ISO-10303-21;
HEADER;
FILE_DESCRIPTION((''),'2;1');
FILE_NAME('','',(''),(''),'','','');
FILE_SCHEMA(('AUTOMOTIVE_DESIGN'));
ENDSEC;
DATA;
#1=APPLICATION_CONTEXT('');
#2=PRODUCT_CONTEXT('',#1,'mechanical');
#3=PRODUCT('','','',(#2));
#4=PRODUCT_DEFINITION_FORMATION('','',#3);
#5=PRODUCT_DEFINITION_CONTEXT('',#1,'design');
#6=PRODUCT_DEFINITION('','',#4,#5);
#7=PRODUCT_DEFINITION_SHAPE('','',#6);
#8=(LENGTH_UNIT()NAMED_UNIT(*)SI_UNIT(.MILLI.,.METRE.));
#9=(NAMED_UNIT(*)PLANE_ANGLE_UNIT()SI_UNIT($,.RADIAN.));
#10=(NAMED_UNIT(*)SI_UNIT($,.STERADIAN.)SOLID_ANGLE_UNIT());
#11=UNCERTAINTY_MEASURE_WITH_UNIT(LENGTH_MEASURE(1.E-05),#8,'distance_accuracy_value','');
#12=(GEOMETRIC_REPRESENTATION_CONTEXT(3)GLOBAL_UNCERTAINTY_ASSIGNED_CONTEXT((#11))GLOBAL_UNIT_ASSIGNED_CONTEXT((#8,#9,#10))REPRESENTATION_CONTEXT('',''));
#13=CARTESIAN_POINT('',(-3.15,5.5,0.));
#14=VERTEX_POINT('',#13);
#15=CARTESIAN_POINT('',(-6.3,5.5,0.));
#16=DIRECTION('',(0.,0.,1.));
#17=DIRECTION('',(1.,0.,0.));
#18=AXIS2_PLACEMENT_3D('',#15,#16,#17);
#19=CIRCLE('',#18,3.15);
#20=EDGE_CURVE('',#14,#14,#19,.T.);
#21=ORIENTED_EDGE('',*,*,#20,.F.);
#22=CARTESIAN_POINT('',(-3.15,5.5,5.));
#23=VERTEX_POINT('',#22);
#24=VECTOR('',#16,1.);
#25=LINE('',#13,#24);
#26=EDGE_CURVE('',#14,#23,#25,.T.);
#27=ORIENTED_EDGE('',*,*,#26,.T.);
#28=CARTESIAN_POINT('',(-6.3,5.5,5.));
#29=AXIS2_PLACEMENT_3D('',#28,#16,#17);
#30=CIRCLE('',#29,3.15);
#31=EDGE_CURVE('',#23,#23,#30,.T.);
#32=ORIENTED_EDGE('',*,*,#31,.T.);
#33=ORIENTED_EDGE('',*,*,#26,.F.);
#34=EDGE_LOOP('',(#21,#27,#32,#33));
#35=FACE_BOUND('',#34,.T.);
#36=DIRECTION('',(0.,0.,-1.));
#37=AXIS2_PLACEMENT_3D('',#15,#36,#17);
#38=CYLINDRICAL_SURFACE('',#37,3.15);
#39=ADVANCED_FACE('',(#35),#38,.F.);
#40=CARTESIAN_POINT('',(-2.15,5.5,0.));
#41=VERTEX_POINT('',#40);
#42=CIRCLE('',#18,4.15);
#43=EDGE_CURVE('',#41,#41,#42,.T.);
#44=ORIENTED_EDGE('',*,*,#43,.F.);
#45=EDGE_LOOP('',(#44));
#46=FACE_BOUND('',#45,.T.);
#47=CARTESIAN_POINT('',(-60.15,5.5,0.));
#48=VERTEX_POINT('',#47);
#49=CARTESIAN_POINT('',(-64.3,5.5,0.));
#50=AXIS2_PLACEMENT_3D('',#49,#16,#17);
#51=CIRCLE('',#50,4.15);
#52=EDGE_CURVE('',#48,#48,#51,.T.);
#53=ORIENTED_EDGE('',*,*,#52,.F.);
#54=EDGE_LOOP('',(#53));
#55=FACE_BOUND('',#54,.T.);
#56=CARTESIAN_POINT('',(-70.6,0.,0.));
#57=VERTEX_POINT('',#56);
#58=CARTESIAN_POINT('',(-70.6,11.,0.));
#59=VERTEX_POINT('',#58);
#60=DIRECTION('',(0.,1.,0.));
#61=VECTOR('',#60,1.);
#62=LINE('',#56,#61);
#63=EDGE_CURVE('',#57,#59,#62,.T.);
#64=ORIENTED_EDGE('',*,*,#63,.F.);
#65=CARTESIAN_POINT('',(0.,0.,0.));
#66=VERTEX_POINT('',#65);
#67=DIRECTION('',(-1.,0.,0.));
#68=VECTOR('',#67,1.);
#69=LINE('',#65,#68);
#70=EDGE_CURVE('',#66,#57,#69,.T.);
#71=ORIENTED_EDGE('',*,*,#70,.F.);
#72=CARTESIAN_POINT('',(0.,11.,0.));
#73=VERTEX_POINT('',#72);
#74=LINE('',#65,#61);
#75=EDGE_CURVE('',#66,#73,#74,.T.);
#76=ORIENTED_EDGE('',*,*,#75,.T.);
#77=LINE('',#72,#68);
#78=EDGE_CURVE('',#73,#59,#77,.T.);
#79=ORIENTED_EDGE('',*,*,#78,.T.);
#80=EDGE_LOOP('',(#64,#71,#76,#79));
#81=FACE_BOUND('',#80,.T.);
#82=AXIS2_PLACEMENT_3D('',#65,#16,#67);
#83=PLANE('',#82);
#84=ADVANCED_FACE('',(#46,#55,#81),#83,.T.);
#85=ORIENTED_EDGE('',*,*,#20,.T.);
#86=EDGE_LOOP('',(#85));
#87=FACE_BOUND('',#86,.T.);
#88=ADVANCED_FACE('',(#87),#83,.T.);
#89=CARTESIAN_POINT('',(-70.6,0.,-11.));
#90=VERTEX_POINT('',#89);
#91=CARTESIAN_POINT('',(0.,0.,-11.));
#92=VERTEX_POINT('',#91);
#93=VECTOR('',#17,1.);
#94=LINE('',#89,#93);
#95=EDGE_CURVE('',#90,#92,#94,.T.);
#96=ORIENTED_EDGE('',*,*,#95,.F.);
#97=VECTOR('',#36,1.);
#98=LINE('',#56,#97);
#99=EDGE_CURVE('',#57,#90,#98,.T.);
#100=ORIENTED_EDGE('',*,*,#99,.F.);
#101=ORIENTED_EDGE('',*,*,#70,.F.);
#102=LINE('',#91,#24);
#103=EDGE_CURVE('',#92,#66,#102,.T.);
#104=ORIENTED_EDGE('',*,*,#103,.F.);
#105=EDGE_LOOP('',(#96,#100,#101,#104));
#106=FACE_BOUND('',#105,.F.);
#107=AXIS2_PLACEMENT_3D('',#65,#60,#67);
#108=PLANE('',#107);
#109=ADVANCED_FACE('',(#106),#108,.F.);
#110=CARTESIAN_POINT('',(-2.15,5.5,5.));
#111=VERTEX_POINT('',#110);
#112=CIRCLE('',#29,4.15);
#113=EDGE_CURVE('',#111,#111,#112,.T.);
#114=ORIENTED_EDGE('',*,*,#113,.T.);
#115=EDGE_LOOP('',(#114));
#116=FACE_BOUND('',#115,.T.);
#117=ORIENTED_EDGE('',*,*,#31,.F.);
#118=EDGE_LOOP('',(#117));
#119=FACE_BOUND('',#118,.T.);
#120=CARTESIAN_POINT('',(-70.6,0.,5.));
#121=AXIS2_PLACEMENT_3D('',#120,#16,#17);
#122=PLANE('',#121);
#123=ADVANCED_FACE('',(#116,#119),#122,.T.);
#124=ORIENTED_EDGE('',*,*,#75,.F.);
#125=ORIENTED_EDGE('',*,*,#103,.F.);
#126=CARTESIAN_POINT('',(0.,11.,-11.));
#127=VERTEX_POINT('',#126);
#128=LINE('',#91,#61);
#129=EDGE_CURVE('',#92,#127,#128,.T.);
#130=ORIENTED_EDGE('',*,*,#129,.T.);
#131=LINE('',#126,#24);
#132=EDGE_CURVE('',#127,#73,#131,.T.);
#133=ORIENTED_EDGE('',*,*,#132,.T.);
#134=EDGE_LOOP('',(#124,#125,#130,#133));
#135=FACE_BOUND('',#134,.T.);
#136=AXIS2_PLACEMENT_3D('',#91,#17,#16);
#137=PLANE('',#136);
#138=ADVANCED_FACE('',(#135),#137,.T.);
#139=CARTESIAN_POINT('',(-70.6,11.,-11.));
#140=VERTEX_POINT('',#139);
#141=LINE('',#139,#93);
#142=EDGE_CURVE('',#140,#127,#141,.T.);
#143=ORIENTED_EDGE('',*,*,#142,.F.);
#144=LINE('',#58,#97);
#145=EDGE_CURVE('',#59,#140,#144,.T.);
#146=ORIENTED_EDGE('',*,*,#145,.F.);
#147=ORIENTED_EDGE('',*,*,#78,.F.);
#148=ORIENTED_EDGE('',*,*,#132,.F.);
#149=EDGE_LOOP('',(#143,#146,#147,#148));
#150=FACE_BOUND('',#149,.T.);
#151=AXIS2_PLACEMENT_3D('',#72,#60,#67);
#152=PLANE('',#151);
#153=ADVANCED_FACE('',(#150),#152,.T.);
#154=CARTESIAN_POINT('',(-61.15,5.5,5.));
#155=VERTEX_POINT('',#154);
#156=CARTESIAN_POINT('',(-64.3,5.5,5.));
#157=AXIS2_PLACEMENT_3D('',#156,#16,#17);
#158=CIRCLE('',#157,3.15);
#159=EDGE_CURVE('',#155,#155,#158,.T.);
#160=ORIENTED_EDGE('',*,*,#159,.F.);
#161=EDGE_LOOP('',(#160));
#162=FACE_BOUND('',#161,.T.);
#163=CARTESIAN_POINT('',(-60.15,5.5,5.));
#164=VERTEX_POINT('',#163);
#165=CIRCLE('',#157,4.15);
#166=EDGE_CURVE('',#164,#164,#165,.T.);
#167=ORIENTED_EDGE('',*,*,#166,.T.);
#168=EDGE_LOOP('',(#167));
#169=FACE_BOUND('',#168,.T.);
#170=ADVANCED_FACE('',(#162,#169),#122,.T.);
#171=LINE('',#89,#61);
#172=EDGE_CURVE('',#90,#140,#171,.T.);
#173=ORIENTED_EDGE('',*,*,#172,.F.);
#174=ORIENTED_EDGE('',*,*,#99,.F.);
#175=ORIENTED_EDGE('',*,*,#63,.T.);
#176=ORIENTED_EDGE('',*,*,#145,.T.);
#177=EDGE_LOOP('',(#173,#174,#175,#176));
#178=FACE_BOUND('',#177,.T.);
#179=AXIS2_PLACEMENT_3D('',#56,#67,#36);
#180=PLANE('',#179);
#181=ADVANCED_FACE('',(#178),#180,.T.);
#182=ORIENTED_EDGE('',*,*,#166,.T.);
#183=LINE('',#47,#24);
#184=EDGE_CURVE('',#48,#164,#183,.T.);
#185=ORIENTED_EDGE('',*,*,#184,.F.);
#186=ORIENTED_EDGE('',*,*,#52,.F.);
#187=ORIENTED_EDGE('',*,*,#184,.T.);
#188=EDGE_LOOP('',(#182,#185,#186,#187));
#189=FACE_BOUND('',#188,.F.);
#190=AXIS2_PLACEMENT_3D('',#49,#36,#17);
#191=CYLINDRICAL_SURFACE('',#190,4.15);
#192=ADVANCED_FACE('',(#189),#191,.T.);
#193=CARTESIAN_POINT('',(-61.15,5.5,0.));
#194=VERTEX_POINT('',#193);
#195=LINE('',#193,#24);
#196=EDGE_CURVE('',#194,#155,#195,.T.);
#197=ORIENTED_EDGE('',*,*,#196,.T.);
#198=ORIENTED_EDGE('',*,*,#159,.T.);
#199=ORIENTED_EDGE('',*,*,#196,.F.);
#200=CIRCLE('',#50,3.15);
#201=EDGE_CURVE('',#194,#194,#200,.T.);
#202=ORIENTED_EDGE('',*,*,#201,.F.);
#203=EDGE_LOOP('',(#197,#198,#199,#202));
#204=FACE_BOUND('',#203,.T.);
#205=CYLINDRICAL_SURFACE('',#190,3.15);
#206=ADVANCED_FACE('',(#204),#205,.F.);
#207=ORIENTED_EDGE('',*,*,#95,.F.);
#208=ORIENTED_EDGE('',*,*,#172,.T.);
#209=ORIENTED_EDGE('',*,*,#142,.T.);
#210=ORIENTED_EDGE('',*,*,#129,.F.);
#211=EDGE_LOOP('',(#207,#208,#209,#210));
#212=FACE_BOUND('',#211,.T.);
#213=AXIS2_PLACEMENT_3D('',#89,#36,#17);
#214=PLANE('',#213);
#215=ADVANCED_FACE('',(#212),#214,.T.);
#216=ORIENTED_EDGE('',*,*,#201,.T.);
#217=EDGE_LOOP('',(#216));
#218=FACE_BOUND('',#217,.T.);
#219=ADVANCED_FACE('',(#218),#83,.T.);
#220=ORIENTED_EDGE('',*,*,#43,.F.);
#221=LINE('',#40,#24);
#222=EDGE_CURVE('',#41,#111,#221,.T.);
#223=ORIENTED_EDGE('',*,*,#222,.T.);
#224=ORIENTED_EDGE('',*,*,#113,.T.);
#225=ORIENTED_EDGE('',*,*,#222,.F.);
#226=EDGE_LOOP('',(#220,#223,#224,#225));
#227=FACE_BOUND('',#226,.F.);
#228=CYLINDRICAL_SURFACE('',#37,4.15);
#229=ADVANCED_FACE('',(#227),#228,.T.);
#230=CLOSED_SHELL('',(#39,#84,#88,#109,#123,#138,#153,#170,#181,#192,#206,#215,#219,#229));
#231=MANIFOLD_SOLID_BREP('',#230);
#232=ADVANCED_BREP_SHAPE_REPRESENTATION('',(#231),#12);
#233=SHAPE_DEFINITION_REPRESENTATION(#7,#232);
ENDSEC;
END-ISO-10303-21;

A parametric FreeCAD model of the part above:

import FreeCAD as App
import Part
import Sketcher

doc = App.newDocument("Part")
body = doc.addObject("PartDesign::Body", "Body")

sketch1 = body.newObject("Sketcher::SketchObject", "Sketch")
sketch1.AttachmentSupport = (doc.getObject("XZ_Plane"), [""])
sketch1.MapMode = "FlatFace"
sketch1.addGeometry([
    Part.LineSegment(App.Vector(-71, 0, 0), App.Vector(0, 0, 0)),
    Part.LineSegment(App.Vector(0, 0, 0), App.Vector(0, -11, 0)),
    Part.LineSegment(App.Vector(0, -11, 0), App.Vector(-71, -11, 0)),
    Part.LineSegment(App.Vector(-71, -11, 0), App.Vector(-71, 0, 0)),
], False)
sketch1.addConstraint([
    Sketcher.Constraint("Coincident", 0, 2, 1, 1),
    Sketcher.Constraint("Coincident", 1, 2, 2, 1),
    Sketcher.Constraint("Coincident", 2, 2, 3, 1),
    Sketcher.Constraint("Coincident", 3, 2, 0, 1),
    Sketcher.Constraint("Horizontal", 0),
    Sketcher.Constraint("Vertical", 1),
    Sketcher.Constraint("Horizontal", 2),
    Sketcher.Constraint("Vertical", 3),
    Sketcher.Constraint("Coincident", 0, 2, -1, 1),
    Sketcher.Constraint("DistanceY", 1, 2, 1, 1, 11.0),
    Sketcher.Constraint("DistanceX", 0, 1, 0, 2, 70.6),
])
pad1 = body.newObject("PartDesign::Pad", "Pad")
pad1.Profile = sketch1
pad1.Length = 11
pad1.Reversed = True

sketch2 = body.newObject("Sketcher::SketchObject", "Sketch001")
sketch2.AttachmentSupport = (doc.getObject("XY_Plane"), [""])
sketch2.MapMode = "FlatFace"
sketch2.addGeometry([
    Part.Circle(App.Vector(-64.3, 5.5, 0), App.Vector(0, 0, 1), 4.2),
    Part.Circle(App.Vector(-64.3, 5.5, 0), App.Vector(0, 0, 1), 3.1),
    Part.Circle(App.Vector(-6.3, 5.5, 0), App.Vector(0, 0, 1), 4.2),
    Part.Circle(App.Vector(-6.3, 5.5, 0), App.Vector(0, 0, 1), 3.1),
], False)
sketch2.addConstraint([
    Sketcher.Constraint("Coincident", 1, 3, 0, 3),
    Sketcher.Constraint("Coincident", 3, 3, 2, 3),
    Sketcher.Constraint("Equal", 0, 2),
    Sketcher.Constraint("Equal", 1, 3),
    Sketcher.Constraint("Horizontal", 1, 3, 2, 3),
    Sketcher.Constraint("Diameter", 1, 6.3),
    Sketcher.Constraint("DistanceX", 0, 3, 2, 3, 58.0),
    Sketcher.Constraint("Diameter", 0, 8.3),
    Sketcher.Constraint("DistanceY", -1, 1, 0, 3, 5.5),
    Sketcher.Constraint("DistanceX", 2, 3, -1, 1, 6.3),
])
pad2 = body.newObject("PartDesign::Pad", "Pad001")
pad2.Profile = sketch2
pad2.Length = 5

doc.recompute()
